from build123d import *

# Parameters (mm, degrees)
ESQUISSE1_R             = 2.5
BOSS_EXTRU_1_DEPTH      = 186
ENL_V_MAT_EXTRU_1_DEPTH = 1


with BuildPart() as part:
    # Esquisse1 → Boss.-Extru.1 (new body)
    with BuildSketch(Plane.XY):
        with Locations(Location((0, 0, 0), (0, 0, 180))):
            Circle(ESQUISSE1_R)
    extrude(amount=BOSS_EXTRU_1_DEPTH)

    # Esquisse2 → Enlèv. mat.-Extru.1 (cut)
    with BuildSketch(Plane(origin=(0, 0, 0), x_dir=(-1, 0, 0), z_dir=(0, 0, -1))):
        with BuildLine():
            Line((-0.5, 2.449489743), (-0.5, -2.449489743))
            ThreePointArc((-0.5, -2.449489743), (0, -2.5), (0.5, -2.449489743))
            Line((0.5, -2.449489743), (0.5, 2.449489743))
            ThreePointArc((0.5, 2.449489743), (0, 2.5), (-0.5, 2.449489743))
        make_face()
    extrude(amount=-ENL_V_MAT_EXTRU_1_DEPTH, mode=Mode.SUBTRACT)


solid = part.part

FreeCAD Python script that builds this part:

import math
import FreeCAD as App
import Part
import Sketcher
from FreeCAD import Vector
Q = App.Units.Quantity

doc = App.newDocument("Part")
body = doc.addObject("PartDesign::Body", "Body")

# Sketch on XY plane
sketch1 = doc.addObject("Sketcher::SketchObject", "Sketch")
body.addObject(sketch1)
sketch1.AttachmentSupport = (doc.XY_Plane, [""])
sketch1.MapMode = "FlatFace"
sketch1.addGeometry(Part.Circle(Vector(0, 0, 0), Vector(0, 0, 1), 2.5), False)
sketch1.addConstraint([
    Sketcher.Constraint("Coincident", 0, 3, -1, 1),
    Sketcher.Constraint("Diameter", 0, Q("5 mm")),
])
pad1 = doc.addObject("PartDesign::Pad", "Pad")
body.addObject(pad1)
pad1.Profile = sketch1
pad1.Length = 186

# Sketch on XY plane
sketch2 = doc.addObject("Sketcher::SketchObject", "Sketch001")
body.addObject(sketch2)
sketch2.AttachmentSupport = (doc.XY_Plane, [""])
sketch2.MapMode = "FlatFace"
sketch2.addGeometry([
    Part.LineSegment(Vector(0.5, 2.44949, 0), Vector(0.5, -2.44949, 0)),
    Part.ArcOfCircle(Part.Circle(Vector(0, 0, 0), Vector(0, 0, 1), 2.5), math.radians(-101.536959), math.radians(-78.463041)),
    Part.LineSegment(Vector(-0.5, -2.44949, 0), Vector(-0.5, 2.44949, 0)),
    Part.ArcOfCircle(Part.Circle(Vector(0, 0, 0), Vector(0, 0, 1), 2.5), math.radians(78.463041), math.radians(101.536959)),
], False)
sketch2.addConstraint([
    Sketcher.Constraint("Coincident", 0, 2, 1, 2),
    Sketcher.Constraint("Coincident", 1, 1, 2, 1),
    Sketcher.Constraint("Coincident", 2, 2, 3, 2),
    Sketcher.Constraint("Coincident", 3, 1, 0, 1),
    Sketcher.Constraint("Vertical", 0),
    Sketcher.Constraint("Vertical", 2),
    Sketcher.Constraint("Coincident", 1, 3, -1, 1),
    Sketcher.Constraint("Coincident", 3, 3, -1, 1),
    Sketcher.Constraint("Equal", 1, 3),
    Sketcher.Constraint("Horizontal", 0, 2, 1, 1),
    Sketcher.Constraint("Radius", 1, Q("2.5 mm")),
    Sketcher.Constraint("DistanceX", 1, 1, 0, 2, Q("1 mm")),
])
pocket1 = doc.addObject("PartDesign::Pocket", "Pocket")
body.addObject(pocket1)
pocket1.Profile = sketch2
pocket1.Length = 1
pocket1.Reversed = True

doc.recompute()
